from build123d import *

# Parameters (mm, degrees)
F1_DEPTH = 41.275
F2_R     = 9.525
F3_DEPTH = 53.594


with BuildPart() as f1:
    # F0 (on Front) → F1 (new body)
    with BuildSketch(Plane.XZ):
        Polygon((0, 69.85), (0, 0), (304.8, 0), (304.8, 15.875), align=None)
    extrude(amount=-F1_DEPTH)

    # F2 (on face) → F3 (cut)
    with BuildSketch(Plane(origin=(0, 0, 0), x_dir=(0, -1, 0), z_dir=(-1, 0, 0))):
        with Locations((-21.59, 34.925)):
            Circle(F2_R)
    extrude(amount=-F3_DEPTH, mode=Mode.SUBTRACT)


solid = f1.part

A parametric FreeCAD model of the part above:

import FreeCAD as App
import Part
import Sketcher
Q = App.Units.Quantity

doc = App.newDocument("Part")
body = doc.addObject("PartDesign::Body", "Body")

sketch1 = body.newObject("Sketcher::SketchObject", "Sketch")
sketch1.AttachmentSupport = (doc.getObject("XZ_Plane"), [""])
sketch1.MapMode = "FlatFace"
sketch1.addGeometry(Part.LineSegment(App.Vector(0, 69.85, 0), App.Vector(0, 0, 0)), False)
sketch1.addGeometry(Part.LineSegment(App.Vector(0, 0, 0), App.Vector(304.8, 0, 0)), False)
sketch1.addGeometry(Part.LineSegment(App.Vector(304.8, 0, 0), App.Vector(304.8, 15.875, 0)), False)
sketch1.addGeometry(Part.LineSegment(App.Vector(304.8, 15.875, 0), App.Vector(0, 69.85, 0)), False)
sketch1.addConstraint(Sketcher.Constraint("Coincident", 0, 2, 1, 1))
sketch1.addConstraint(Sketcher.Constraint("Coincident", 1, 2, 2, 1))
sketch1.addConstraint(Sketcher.Constraint("Coincident", 2, 2, 3, 1))
sketch1.addConstraint(Sketcher.Constraint("Coincident", 3, 2, 0, 1))
sketch1.addConstraint(Sketcher.Constraint("Vertical", 0))
sketch1.addConstraint(Sketcher.Constraint("Horizontal", 1))
sketch1.addConstraint(Sketcher.Constraint("Vertical", 2))
sketch1.addConstraint(Sketcher.Constraint("Coincident", 0, 2, -1, 1))
sketch1.addConstraint(Sketcher.Constraint("DistanceX", 1, 1, 1, 2, Q("12 in")))
sketch1.addConstraint(Sketcher.Constraint("DistanceY", 0, 2, 0, 1, Q("2.75 in")))
sketch1.addConstraint(Sketcher.Constraint("DistanceY", 2, 1, 2, 2, Q("0.625 in")))
pad1 = body.newObject("PartDesign::Pad", "Pad")
pad1.Profile = sketch1
pad1.Length = Q("1.625 in")
pad1.Reversed = True

sketch2 = body.newObject("Sketcher::SketchObject", "Sketch001")
sketch2.AttachmentSupport = (doc.getObject("YZ_Plane"), [""])
sketch2.MapMode = "FlatFace"
sketch2.addGeometry(Part.Circle(App.Vector(21.59, 34.925, 0), App.Vector(0, 0, 1), 9.525), False)
sketch2.addConstraint(Sketcher.Constraint("Diameter", 0, Q("0.75 in")))
sketch2.addConstraint(Sketcher.Constraint("DistanceX", -1, 1, 0, 3, Q("0.85 in")))
sketch2.addConstraint(Sketcher.Constraint("DistanceY", -1, 1, 0, 3, Q("1.375 in")))
pocket1 = body.newObject("PartDesign::Pocket", "Pocket")
pocket1.Profile = sketch2
pocket1.Length = Q("2.11 in")
pocket1.Reversed = True

doc.recompute()
